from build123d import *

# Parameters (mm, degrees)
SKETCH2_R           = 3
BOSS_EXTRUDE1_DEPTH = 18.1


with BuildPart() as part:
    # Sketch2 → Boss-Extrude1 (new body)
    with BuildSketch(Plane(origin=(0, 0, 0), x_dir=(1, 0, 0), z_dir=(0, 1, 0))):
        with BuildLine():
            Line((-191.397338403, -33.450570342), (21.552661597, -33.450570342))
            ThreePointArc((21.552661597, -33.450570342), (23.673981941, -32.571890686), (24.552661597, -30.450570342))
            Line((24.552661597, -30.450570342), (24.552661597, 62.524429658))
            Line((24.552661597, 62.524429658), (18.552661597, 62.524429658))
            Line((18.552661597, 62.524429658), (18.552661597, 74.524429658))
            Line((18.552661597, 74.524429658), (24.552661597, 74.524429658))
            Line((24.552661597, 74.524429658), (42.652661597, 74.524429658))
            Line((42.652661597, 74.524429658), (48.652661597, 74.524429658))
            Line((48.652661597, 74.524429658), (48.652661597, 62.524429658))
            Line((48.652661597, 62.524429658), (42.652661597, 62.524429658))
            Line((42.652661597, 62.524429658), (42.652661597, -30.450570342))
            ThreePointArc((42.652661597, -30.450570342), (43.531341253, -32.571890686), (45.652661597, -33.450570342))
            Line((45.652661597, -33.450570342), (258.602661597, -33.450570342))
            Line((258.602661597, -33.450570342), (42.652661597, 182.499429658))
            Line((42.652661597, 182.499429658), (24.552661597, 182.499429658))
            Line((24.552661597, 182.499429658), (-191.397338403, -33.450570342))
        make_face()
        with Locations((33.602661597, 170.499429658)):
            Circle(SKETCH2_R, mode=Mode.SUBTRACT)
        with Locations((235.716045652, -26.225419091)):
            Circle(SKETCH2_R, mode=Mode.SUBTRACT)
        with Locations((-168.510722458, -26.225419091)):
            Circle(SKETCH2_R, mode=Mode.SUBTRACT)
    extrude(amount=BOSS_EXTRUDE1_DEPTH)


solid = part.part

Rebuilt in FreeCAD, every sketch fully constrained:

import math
import FreeCAD as App
import Part
import Sketcher

V = App.Vector

doc = App.newDocument("Part")
body = doc.addObject("PartDesign::Body", "Body")

sketch1 = body.newObject("Sketcher::SketchObject", "Sketch")
sketch1.AttachmentSupport = (doc.getObject("XZ_Plane"), [""])
sketch1.MapMode = "FlatFace"
sketch1.addGeometry([
    Part.LineSegment(V(-191.4, 33.5, 0), V(21.6, 33.5, 0)),
    Part.ArcOfCircle(Part.Circle(V(21.6, 30.5, 0), V(0, 0, 1), 3), math.radians(0), math.radians(90)),
    Part.LineSegment(V(24.6, 30.5, 0), V(24.6, -62.5, 0)),
    Part.LineSegment(V(24.6, -62.5, 0), V(18.6, -62.5, 0)),
    Part.LineSegment(V(18.6, -62.5, 0), V(18.6, -74.5, 0)),
    Part.LineSegment(V(18.6, -74.5, 0), V(48.7, -74.5, 0)),
    Part.LineSegment(V(48.7, -74.5, 0), V(48.7, -62.5, 0)),
    Part.LineSegment(V(48.7, -62.5, 0), V(42.7, -62.5, 0)),
    Part.LineSegment(V(42.7, -62.5, 0), V(42.7, 30.5, 0)),
    Part.ArcOfCircle(Part.Circle(V(45.7, 30.5, 0), V(0, 0, 1), 3), math.radians(90), math.radians(180)),
    Part.LineSegment(V(45.7, 33.5, 0), V(258.6, 33.5, 0)),
    Part.LineSegment(V(258.6, 33.5, 0), V(42.7, -182.5, 0)),
    Part.LineSegment(V(42.7, -182.5, 0), V(24.6, -182.5, 0)),
    Part.LineSegment(V(24.6, -182.5, 0), V(-191.4, 33.5, 0)),
    Part.Circle(V(-168.5, 26.2, 0), V(0, 0, 1), 3),
    Part.Circle(V(235.7, 26.2, 0), V(0, 0, 1), 3),
    Part.Circle(V(33.6, -170.5, 0), V(0, 0, 1), 3),
], False)
sketch1.addConstraint([
    Sketcher.Constraint("Tangent", 0, 2, 1, 2),
    Sketcher.Constraint("Tangent", 1, 1, 2, 1),
    Sketcher.Constraint("Coincident", 2, 2, 3, 1),
    Sketcher.Constraint("Coincident", 3, 2, 4, 1),
    Sketcher.Constraint("Coincident", 4, 2, 5, 1),
    Sketcher.Constraint("Coincident", 5, 2, 6, 1),
    Sketcher.Constraint("Coincident", 6, 2, 7, 1),
    Sketcher.Constraint("Coincident", 7, 2, 8, 1),
    Sketcher.Constraint("Tangent", 8, 2, 9, 2),
    Sketcher.Constraint("Tangent", 9, 1, 10, 1),
    Sketcher.Constraint("Coincident", 10, 2, 11, 1),
    Sketcher.Constraint("Coincident", 11, 2, 12, 1),
    Sketcher.Constraint("Coincident", 12, 2, 13, 1),
    Sketcher.Constraint("Coincident", 13, 2, 0, 1),
    Sketcher.Constraint("Horizontal", 0),
    Sketcher.Constraint("Vertical", 2),
    Sketcher.Constraint("Horizontal", 3),
    Sketcher.Constraint("Vertical", 4),
    Sketcher.Constraint("Horizontal", 5),
    Sketcher.Constraint("Vertical", 6),
    Sketcher.Constraint("Horizontal", 7),
    Sketcher.Constraint("Vertical", 8),
    Sketcher.Constraint("Horizontal", 10),
    Sketcher.Constraint("Horizontal", 12),
    Sketcher.Constraint("Equal", 1, 9),
    Sketcher.Constraint("Equal", 9, 14),
    Sketcher.Constraint("Equal", 14, 15),
    Sketcher.Constraint("Equal", 15, 16),
    Sketcher.Constraint("Perpendicular", 11, 13),
    Sketcher.Constraint("Horizontal", 1, 3, 9, 3),
    Sketcher.Constraint("Horizontal", 14, 3, 15, 3),
    Sketcher.Constraint("Horizontal", 3, 2, 6, 2),
    Sketcher.Constraint("Vertical", 8, 2, 11, 2),
    Sketcher.Constraint("Vertical", 2, 2, 12, 2),
    Sketcher.Constraint("Equal", 3, 7),
    Sketcher.Constraint("Equal", 0, 10),
    Sketcher.Constraint("Diameter", 14, 6.0),
    Sketcher.Constraint("DistanceX", 3, 2, 3, 1, 6.0),
    Sketcher.Constraint("DistanceY", 4, 2, 4, 1, 12.0),
    Sketcher.Constraint("DistanceX", 5, 1, 5, 2, 30.1),
    Sketcher.Constraint("DistanceY", 11, 2, 16, 3, 12.0),
    Sketcher.Constraint("DistanceX", 0, 1, 0, 2, 212.95),
    Sketcher.Constraint("DistanceY", 2, 2, 2, 1, 92.975),
    Sketcher.Constraint("DistanceX", 1, 3, 16, 3, 12.05),
    Sketcher.Constraint("DistanceX", -1, 1, 1, 3, 21.552662),
    Sketcher.Constraint("DistanceY", -1, 1, 1, 3, 30.45057),
    Sketcher.Constraint("DistanceY", -1, 1, 14, 3, 26.225419),
    Sketcher.Constraint("DistanceX", 14, 3, 15, 3, 404.226768),
    Sketcher.Constraint("DistanceX", 14, 3, -1, 1, 168.510722),
])
pad1 = body.newObject("PartDesign::Pad", "Pad")
pad1.Profile = sketch1
pad1.Length = 18.1
pad1.Reversed = True

doc.recompute()
